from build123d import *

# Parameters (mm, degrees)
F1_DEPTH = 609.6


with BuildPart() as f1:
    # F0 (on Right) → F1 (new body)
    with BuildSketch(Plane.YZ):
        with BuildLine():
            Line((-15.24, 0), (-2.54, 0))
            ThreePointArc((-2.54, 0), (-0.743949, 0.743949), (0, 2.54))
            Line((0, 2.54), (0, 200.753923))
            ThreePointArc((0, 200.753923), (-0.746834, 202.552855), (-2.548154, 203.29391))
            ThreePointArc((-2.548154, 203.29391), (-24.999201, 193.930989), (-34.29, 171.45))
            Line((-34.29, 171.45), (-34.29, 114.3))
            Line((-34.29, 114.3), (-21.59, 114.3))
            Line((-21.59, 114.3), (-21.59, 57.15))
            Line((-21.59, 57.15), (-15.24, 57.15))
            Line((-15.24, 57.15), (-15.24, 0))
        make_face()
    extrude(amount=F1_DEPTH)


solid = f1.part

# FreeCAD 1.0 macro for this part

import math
import FreeCAD as App
import Part
import Sketcher

V = App.Vector
Q = App.Units.Quantity

doc = App.newDocument("Part")
body = doc.addObject("PartDesign::Body", "Body")

# Sketch on YZ plane
sketch1 = body.newObject("Sketcher::SketchObject", "Sketch")
sketch1.AttachmentSupport = (doc.getObject("YZ_Plane"), [""])
sketch1.MapMode = "FlatFace"
sketch1.addGeometry(Part.LineSegment(V(-15.2, 0, 0), V(-2.5, 0, 0)), False)
sketch1.addGeometry(Part.ArcOfCircle(Part.Circle(V(-2.5, 2.5, 0), V(0, 0, 1), 2.5), math.radians(-90), math.radians(0)), False)
sketch1.addGeometry(Part.LineSegment(V(0, 2.5, 0), V(0, 200.8, 0)), False)
sketch1.addGeometry(Part.ArcOfCircle(Part.Circle(V(-2.5, 200.8, 0), V(0, 0, 1), 2.5), math.radians(0), math.radians(90)), False)
sketch1.addGeometry(Part.ArcOfCircle(Part.Circle(V(-2.4, 171.5, 0), V(0, 0, 1), 31.8), math.radians(90), math.radians(180)), False)
sketch1.addGeometry(Part.LineSegment(V(-34.3, 171.4, 0), V(-34.3, 114.3, 0)), False)
sketch1.addGeometry(Part.LineSegment(V(-34.3, 114.3, 0), V(-21.6, 114.3, 0)), False)
sketch1.addGeometry(Part.LineSegment(V(-21.6, 114.3, 0), V(-21.6, 57.1, 0)), False)
sketch1.addGeometry(Part.LineSegment(V(-21.6, 57.1, 0), V(-15.2, 57.1, 0)), False)
sketch1.addGeometry(Part.LineSegment(V(-15.2, 57.1, 0), V(-15.2, 0, 0)), False)
sketch1.addConstraint(Sketcher.Constraint("Tangent", 0, 2, 1, 1))
sketch1.addConstraint(Sketcher.Constraint("Tangent", 1, 2, 2, 1))
sketch1.addConstraint(Sketcher.Constraint("Tangent", 2, 2, 3, 1))
sketch1.addConstraint(Sketcher.Constraint("Tangent", 3, 2, 4, 1))
sketch1.addConstraint(Sketcher.Constraint("Tangent", 4, 2, 5, 1))
sketch1.addConstraint(Sketcher.Constraint("Coincident", 5, 2, 6, 1))
sketch1.addConstraint(Sketcher.Constraint("Coincident", 6, 2, 7, 1))
sketch1.addConstraint(Sketcher.Constraint("Coincident", 7, 2, 8, 1))
sketch1.addConstraint(Sketcher.Constraint("Coincident", 8, 2, 9, 1))
sketch1.addConstraint(Sketcher.Constraint("Coincident", 9, 2, 0, 1))
sketch1.addConstraint(Sketcher.Constraint("Horizontal", 0))
sketch1.addConstraint(Sketcher.Constraint("Vertical", 2))
sketch1.addConstraint(Sketcher.Constraint("Vertical", 5))
sketch1.addConstraint(Sketcher.Constraint("Horizontal", 6))
sketch1.addConstraint(Sketcher.Constraint("Vertical", 7))
sketch1.addConstraint(Sketcher.Constraint("Horizontal", 8))
sketch1.addConstraint(Sketcher.Constraint("Vertical", 9))
sketch1.addConstraint(Sketcher.Constraint("Equal", 1, 3))
sketch1.addConstraint(Sketcher.Constraint("PointOnObject", 0, 2, -1))
sketch1.addConstraint(Sketcher.Constraint("PointOnObject", 1, 2, -2))
sketch1.addConstraint(Sketcher.Constraint("Equal", 0, 6))
sketch1.addConstraint(Sketcher.Constraint("Equal", 5, 7))
sketch1.addConstraint(Sketcher.Constraint("Equal", 7, 9))
sketch1.addConstraint(Sketcher.Constraint("Radius", 1, Q("0.1 in")))
sketch1.addConstraint(Sketcher.Constraint("DistanceX", 0, 1, 0, 2, Q("0.5 in")))
sketch1.addConstraint(Sketcher.Constraint("DistanceX", 8, 1, 8, 2, Q("0.25 in")))
sketch1.addConstraint(Sketcher.Constraint("DistanceY", 5, 2, 5, 1, Q("2.25 in")))
sketch1.addConstraint(Sketcher.Constraint("Radius", 4, 31.844073))
pad1 = body.newObject("PartDesign::Pad", "Pad")
pad1.Profile = sketch1
pad1.Length = Q("24 in")

doc.recompute()
